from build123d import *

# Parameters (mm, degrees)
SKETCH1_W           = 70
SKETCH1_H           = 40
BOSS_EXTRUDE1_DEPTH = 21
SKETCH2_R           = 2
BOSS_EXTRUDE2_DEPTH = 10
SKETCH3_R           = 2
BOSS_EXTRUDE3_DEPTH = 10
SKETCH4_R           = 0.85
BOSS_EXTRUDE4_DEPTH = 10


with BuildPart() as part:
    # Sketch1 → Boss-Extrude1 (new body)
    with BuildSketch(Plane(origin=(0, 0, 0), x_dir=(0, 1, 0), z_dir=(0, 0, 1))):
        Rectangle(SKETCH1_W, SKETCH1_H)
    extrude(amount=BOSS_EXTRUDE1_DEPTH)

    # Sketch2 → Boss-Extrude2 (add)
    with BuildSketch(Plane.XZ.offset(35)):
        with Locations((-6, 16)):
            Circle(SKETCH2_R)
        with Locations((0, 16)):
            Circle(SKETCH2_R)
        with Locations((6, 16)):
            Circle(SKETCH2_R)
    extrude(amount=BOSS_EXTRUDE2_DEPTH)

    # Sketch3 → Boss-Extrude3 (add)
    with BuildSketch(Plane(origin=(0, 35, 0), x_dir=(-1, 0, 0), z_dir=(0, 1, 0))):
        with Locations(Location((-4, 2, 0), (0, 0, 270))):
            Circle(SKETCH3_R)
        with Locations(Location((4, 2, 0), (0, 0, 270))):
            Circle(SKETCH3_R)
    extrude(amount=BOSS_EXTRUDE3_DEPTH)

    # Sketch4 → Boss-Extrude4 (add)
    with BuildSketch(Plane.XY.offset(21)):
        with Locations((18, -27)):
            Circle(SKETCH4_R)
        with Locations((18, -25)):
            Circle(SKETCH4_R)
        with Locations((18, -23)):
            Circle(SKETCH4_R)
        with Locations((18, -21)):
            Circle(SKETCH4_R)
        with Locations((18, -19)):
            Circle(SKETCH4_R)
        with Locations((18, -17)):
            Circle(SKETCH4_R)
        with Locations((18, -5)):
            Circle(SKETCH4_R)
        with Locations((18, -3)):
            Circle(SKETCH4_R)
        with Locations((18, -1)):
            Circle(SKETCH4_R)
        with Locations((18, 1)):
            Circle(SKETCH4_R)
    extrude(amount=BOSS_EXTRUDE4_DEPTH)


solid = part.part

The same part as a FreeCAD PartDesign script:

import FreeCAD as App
import Part
import Sketcher
from FreeCAD import Vector
Q = App.Units.Quantity


def add_polygon(sketch, points):
    """Adds a closed chain of lines whose ends are joined by coincident constraints."""
    first, n = sketch.GeometryCount, len(points)
    for a, b in zip(points, points[1:] + points[:1]):
        sketch.addGeometry(Part.LineSegment(App.Vector(*a, 0), App.Vector(*b, 0)), False)
    for i in range(n):
        sketch.addConstraint(Sketcher.Constraint("Coincident", first + i, 2, first + (i + 1) % n, 1))

doc = App.newDocument("Part")
params = doc.addObject("Spreadsheet::Sheet", "Params")
for row, (alias, value) in enumerate([
    ("sketch1_width", "40 mm"),
    ("sketch1_height", "70 mm"),
    ("pad1_length", "21 mm"),
    ("sketch2_diameter", "4 mm"),
    ("pad2_length", "10 mm"),
    ("sketch3_diameter", "4 mm"),
    ("pad3_length", "10 mm"),
    ("sketch4_diameter", "1.7 mm"),
    ("pad4_length", "10 mm"),
], start=1):
    params.set(f"A{row}", alias)
    params.set(f"B{row}", "=" + value)
    params.setAlias(f"B{row}", alias)

body = doc.addObject("PartDesign::Body", "Body")

# Sketch on XY plane
sketch1 = doc.addObject("Sketcher::SketchObject", "Sketch")
body.addObject(sketch1)
sketch1.AttachmentSupport = (doc.XY_Plane, [""])
sketch1.MapMode = "FlatFace"
add_polygon(sketch1, [(-20, -35), (20, -35), (20, 35), (-20, 35)])  # lines 0-3
sketch1.addConstraint(Sketcher.Constraint("Horizontal", 0))
sketch1.addConstraint(Sketcher.Constraint("Vertical", 1))
sketch1.addConstraint(Sketcher.Constraint("Horizontal", 2))
sketch1.addConstraint(Sketcher.Constraint("Vertical", 3))
sketch1.addConstraint(Sketcher.Constraint("Symmetric", 0, 2, 2, 2, -1, 1))
sketch1.addConstraint(Sketcher.Constraint("DistanceX", 0, 1, 0, 2, Q("40 mm")))
sketch1.addConstraint(Sketcher.Constraint("DistanceY", 1, 1, 1, 2, Q("70 mm")))
sketch1.setExpression("Constraints[9]", "Params.sketch1_width")
sketch1.setExpression("Constraints[10]", "Params.sketch1_height")
pad1 = doc.addObject("PartDesign::Pad", "Pad")
body.addObject(pad1)
pad1.Profile = sketch1
pad1.setExpression("Length", "Params.pad1_length")

# Sketch on XZ plane
sketch2 = doc.addObject("Sketcher::SketchObject", "Sketch001")
body.addObject(sketch2)
sketch2.AttachmentSupport = (doc.XZ_Plane, [""])
sketch2.MapMode = "FlatFace"
sketch2.AttachmentOffset = App.Placement(Vector(0, 0, 35), App.Rotation())
sketch2.addGeometry(Part.Circle(Vector(-6, 16, 0), Vector(0, 0, 1), 2), False)
sketch2.addGeometry(Part.Circle(Vector(0, 16, 0), Vector(0, 0, 1), 2), False)
sketch2.addGeometry(Part.Circle(Vector(6, 16, 0), Vector(0, 0, 1), 2), False)
sketch2.addConstraint(Sketcher.Constraint("Equal", 0, 1))
sketch2.addConstraint(Sketcher.Constraint("Equal", 1, 2))
sketch2.addConstraint(Sketcher.Constraint("Symmetric", 0, 3, 2, 3, -2))
sketch2.addConstraint(Sketcher.Constraint("PointOnObject", 1, 3, -2))
sketch2.addConstraint(Sketcher.Constraint("Horizontal", 0, 3, 1, 3))
sketch2.addConstraint(Sketcher.Constraint("Diameter", 0, Q("4 mm")))
sketch2.addConstraint(Sketcher.Constraint("DistanceX", 0, 3, -1, 1, Q("6 mm")))
sketch2.addConstraint(Sketcher.Constraint("DistanceY", -1, 1, 0, 3, Q("16 mm")))
sketch2.setExpression("Constraints[5]", "Params.sketch2_diameter")
pad2 = doc.addObject("PartDesign::Pad", "Pad001")
body.addObject(pad2)
pad2.Profile = sketch2
pad2.setExpression("Length", "Params.pad2_length")

# Sketch on XZ plane
sketch3 = doc.addObject("Sketcher::SketchObject", "Sketch002")
body.addObject(sketch3)
sketch3.AttachmentSupport = (doc.XZ_Plane, [""])
sketch3.MapMode = "FlatFace"
sketch3.AttachmentOffset = App.Placement(Vector(0, 0, -35), App.Rotation())
sketch3.addGeometry(Part.Circle(Vector(4, 2, 0), Vector(0, 0, 1), 2), False)
sketch3.addGeometry(Part.Circle(Vector(-4, 2, 0), Vector(0, 0, 1), 2), False)
sketch3.addConstraint(Sketcher.Constraint("Equal", 0, 1))
sketch3.addConstraint(Sketcher.Constraint("Symmetric", 0, 3, 1, 3, -2))
sketch3.addConstraint(Sketcher.Constraint("Diameter", 0, Q("4 mm")))
sketch3.addConstraint(Sketcher.Constraint("DistanceX", -1, 1, 0, 3, Q("4 mm")))
sketch3.addConstraint(Sketcher.Constraint("DistanceY", -1, 1, 0, 3, Q("2 mm")))
sketch3.setExpression("Constraints[2]", "Params.sketch3_diameter")
pad3 = doc.addObject("PartDesign::Pad", "Pad002")
body.addObject(pad3)
pad3.Profile = sketch3
pad3.setExpression("Length", "Params.pad3_length")
pad3.Reversed = True

# Sketch on XY plane
sketch4 = doc.addObject("Sketcher::SketchObject", "Sketch003")
body.addObject(sketch4)
sketch4.AttachmentSupport = (doc.XY_Plane, [""])
sketch4.MapMode = "FlatFace"
sketch4.AttachmentOffset = App.Placement(Vector(0, 0, 21), App.Rotation())
sketch4.addGeometry(Part.Circle(Vector(18, -27, 0), Vector(0, 0, 1), 0.8), False)
sketch4.addGeometry(Part.Circle(Vector(18, -25, 0), Vector(0, 0, 1), 0.8), False)
sketch4.addGeometry(Part.Circle(Vector(18, -23, 0), Vector(0, 0, 1), 0.8), False)
sketch4.addGeometry(Part.Circle(Vector(18, -21, 0), Vector(0, 0, 1), 0.8), False)
sketch4.addGeometry(Part.Circle(Vector(18, -19, 0), Vector(0, 0, 1), 0.8), False)
sketch4.addGeometry(Part.Circle(Vector(18, -17, 0), Vector(0, 0, 1), 0.8), False)
sketch4.addGeometry(Part.Circle(Vector(18, -5, 0), Vector(0, 0, 1), 0.8), False)
sketch4.addGeometry(Part.Circle(Vector(18, -3, 0), Vector(0, 0, 1), 0.8), False)
sketch4.addGeometry(Part.Circle(Vector(18, -1, 0), Vector(0, 0, 1), 0.8), False)
sketch4.addGeometry(Part.Circle(Vector(18, 1, 0), Vector(0, 0, 1), 0.8), False)
sketch4.addConstraint(Sketcher.Constraint("Equal", 0, 1))
sketch4.addConstraint(Sketcher.Constraint("Equal", 1, 2))
sketch4.addConstraint(Sketcher.Constraint("Equal", 2, 3))
sketch4.addConstraint(Sketcher.Constraint("Equal", 3, 4))
sketch4.addConstraint(Sketcher.Constraint("Equal", 4, 5))
sketch4.addConstraint(Sketcher.Constraint("Equal", 5, 6))
sketch4.addConstraint(Sketcher.Constraint("Equal", 6, 7))
sketch4.addConstraint(Sketcher.Constraint("Equal", 7, 8))
sketch4.addConstraint(Sketcher.Constraint("Equal", 8, 9))
sketch4.addConstraint(Sketcher.Constraint("Symmetric", 8, 3, 9, 3, -1))
sketch4.addConstraint(Sketcher.Constraint("Vertical", 0, 3, 1, 3))
sketch4.addConstraint(Sketcher.Constraint("Vertical", 1, 3, 2, 3))
sketch4.addConstraint(Sketcher.Constraint("Vertical", 2, 3, 3, 3))
sketch4.addConstraint(Sketcher.Constraint("Vertical", 3, 3, 4, 3))
sketch4.addConstraint(Sketcher.Constraint("Vertical", 4, 3, 5, 3))
sketch4.addConstraint(Sketcher.Constraint("Vertical", 5, 3, 6, 3))
sketch4.addConstraint(Sketcher.Constraint("Vertical", 6, 3, 7, 3))
sketch4.addConstraint(Sketcher.Constraint("Vertical", 7, 3, 8, 3))
sketch4.addConstraint(Sketcher.Constraint("Diameter", 0, Q("1.7 mm")))
sketch4.addConstraint(Sketcher.Constraint("DistanceX", -1, 1, 0, 3, Q("18 mm")))
sketch4.addConstraint(Sketcher.Constraint("DistanceY", 0, 3, -1, 1, Q("27 mm")))
sketch4.addConstraint(Sketcher.Constraint("DistanceY", 1, 3, -1, 1, Q("25 mm")))
sketch4.addConstraint(Sketcher.Constraint("DistanceY", 2, 3, -1, 1, Q("23 mm")))
sketch4.addConstraint(Sketcher.Constraint("DistanceY", 3, 3, -1, 1, Q("21 mm")))
sketch4.addConstraint(Sketcher.Constraint("DistanceY", 4, 3, -1, 1, Q("19 mm")))
sketch4.addConstraint(Sketcher.Constraint("DistanceY", 5, 3, -1, 1, Q("17 mm")))
sketch4.addConstraint(Sketcher.Constraint("DistanceY", 6, 3, -1, 1, Q("5 mm")))
sketch4.addConstraint(Sketcher.Constraint("DistanceY", 7, 3, -1, 1, Q("3 mm")))
sketch4.addConstraint(Sketcher.Constraint("DistanceY", 8, 3, -1, 1, Q("1 mm")))
sketch4.setExpression("Constraints[18]", "Params.sketch4_diameter")
pad4 = doc.addObject("PartDesign::Pad", "Pad003")
body.addObject(pad4)
pad4.Profile = sketch4
pad4.setExpression("Length", "Params.pad4_length")

doc.recompute()
